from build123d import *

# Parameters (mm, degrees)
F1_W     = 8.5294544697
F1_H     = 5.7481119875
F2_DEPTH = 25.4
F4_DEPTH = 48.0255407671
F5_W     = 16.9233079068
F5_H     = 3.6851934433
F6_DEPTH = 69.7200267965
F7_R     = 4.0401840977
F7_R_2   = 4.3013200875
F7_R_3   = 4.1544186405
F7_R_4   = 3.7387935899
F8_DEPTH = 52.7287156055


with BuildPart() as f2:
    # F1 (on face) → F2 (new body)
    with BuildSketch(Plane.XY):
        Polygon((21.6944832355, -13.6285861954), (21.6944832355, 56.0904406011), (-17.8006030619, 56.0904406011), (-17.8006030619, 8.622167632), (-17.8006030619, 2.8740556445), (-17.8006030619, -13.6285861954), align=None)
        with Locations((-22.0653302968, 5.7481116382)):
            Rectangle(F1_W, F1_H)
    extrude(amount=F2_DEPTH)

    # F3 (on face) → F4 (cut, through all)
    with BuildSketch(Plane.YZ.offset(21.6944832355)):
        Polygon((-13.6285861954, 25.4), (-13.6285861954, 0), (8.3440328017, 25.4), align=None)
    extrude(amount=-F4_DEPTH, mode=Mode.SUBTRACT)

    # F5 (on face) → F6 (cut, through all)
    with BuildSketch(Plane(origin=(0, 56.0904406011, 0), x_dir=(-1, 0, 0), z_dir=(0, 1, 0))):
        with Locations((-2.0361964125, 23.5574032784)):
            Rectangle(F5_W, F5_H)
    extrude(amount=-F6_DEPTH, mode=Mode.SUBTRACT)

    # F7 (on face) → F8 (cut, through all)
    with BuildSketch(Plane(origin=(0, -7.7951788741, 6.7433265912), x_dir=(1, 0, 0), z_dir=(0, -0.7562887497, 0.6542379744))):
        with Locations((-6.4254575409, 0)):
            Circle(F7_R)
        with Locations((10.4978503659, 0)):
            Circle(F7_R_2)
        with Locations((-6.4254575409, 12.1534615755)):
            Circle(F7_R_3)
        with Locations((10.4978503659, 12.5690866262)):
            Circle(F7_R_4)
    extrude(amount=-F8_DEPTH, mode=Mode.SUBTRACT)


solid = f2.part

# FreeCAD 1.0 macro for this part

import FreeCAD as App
import Part
import Sketcher
from FreeCAD import Vector
Q = App.Units.Quantity

doc = App.newDocument("Part")
params = doc.addObject("Spreadsheet::Sheet", "Params")
for row, (alias, value) in enumerate([
    ("pad1_length", "1 in"),
    ("sketch2_height", "1 in"),
], start=1):
    params.set(f"A{row}", alias)
    params.set(f"B{row}", "=" + value)
    params.setAlias(f"B{row}", alias)

body = doc.addObject("PartDesign::Body", "Body")

sketch1 = body.newObject("Sketcher::SketchObject", "Sketch")
sketch1.AttachmentSupport = (doc.getObject("XY_Plane"), [""])
sketch1.MapMode = "FlatFace"
sketch1.addGeometry(Part.LineSegment(Vector(22, -14, 0), Vector(22, 56, 0)), False)
sketch1.addGeometry(Part.LineSegment(Vector(22, 56, 0), Vector(-18, 56, 0)), False)
sketch1.addGeometry(Part.LineSegment(Vector(-18, 56, 0), Vector(-18, 9, 0)), False)
sketch1.addGeometry(Part.LineSegment(Vector(-18, 9, 0), Vector(-26, 9, 0)), False)
sketch1.addGeometry(Part.LineSegment(Vector(-26, 9, 0), Vector(-26, 3, 0)), False)
sketch1.addGeometry(Part.LineSegment(Vector(-26, 3, 0), Vector(-18, 3, 0)), False)
sketch1.addGeometry(Part.LineSegment(Vector(-18, 3, 0), Vector(-18, -14, 0)), False)
sketch1.addGeometry(Part.LineSegment(Vector(-18, -14, 0), Vector(22, -14, 0)), False)
sketch1.addConstraint(Sketcher.Constraint("Coincident", 0, 2, 1, 1))
sketch1.addConstraint(Sketcher.Constraint("Coincident", 1, 2, 2, 1))
sketch1.addConstraint(Sketcher.Constraint("Coincident", 2, 2, 3, 1))
sketch1.addConstraint(Sketcher.Constraint("Coincident", 3, 2, 4, 1))
sketch1.addConstraint(Sketcher.Constraint("Coincident", 4, 2, 5, 1))
sketch1.addConstraint(Sketcher.Constraint("Coincident", 5, 2, 6, 1))
sketch1.addConstraint(Sketcher.Constraint("Coincident", 6, 2, 7, 1))
sketch1.addConstraint(Sketcher.Constraint("Coincident", 7, 2, 0, 1))
sketch1.addConstraint(Sketcher.Constraint("Vertical", 0))
sketch1.addConstraint(Sketcher.Constraint("Horizontal", 1))
sketch1.addConstraint(Sketcher.Constraint("Vertical", 2))
sketch1.addConstraint(Sketcher.Constraint("Horizontal", 3))
sketch1.addConstraint(Sketcher.Constraint("Vertical", 4))
sketch1.addConstraint(Sketcher.Constraint("Horizontal", 5))
sketch1.addConstraint(Sketcher.Constraint("Vertical", 6))
sketch1.addConstraint(Sketcher.Constraint("Horizontal", 7))
sketch1.addConstraint(Sketcher.Constraint("Vertical", 2, 2, 5, 2))
sketch1.addConstraint(Sketcher.Constraint("DistanceY", 4, 2, 4, 1, 5.748112))
sketch1.addConstraint(Sketcher.Constraint("DistanceY", 6, 2, 6, 1, 16.502642))
sketch1.addConstraint(Sketcher.Constraint("DistanceX", 1, 2, 1, 1, 39.495086))
sketch1.addConstraint(Sketcher.Constraint("DistanceX", 3, 2, 3, 1, 8.529454))
sketch1.addConstraint(Sketcher.Constraint("DistanceY", 0, 1, 0, 2, 69.719027))
sketch1.addConstraint(Sketcher.Constraint("DistanceY", -1, 1, 0, 2, 56.090441))
sketch1.addConstraint(Sketcher.Constraint("DistanceX", -1, 1, 0, 2, 21.694483))
pad1 = body.newObject("PartDesign::Pad", "Pad")
pad1.Profile = sketch1
pad1.setExpression("Length", "Params.pad1_length")

sketch2 = body.newObject("Sketcher::SketchObject", "Sketch001")
sketch2.AttachmentSupport = (doc.getObject("YZ_Plane"), [""])
sketch2.MapMode = "FlatFace"
sketch2.AttachmentOffset = App.Placement(Vector(0, 0, 21.694483), App.Rotation())
sketch2.addGeometry(Part.LineSegment(Vector(-14, 25, 0), Vector(-14, 0, 0)), False)
sketch2.addGeometry(Part.LineSegment(Vector(-14, 0, 0), Vector(8, 25, 0)), False)
sketch2.addGeometry(Part.LineSegment(Vector(8, 25, 0), Vector(-14, 25, 0)), False)
sketch2.addConstraint(Sketcher.Constraint("Coincident", 0, 2, 1, 1))
sketch2.addConstraint(Sketcher.Constraint("Coincident", 1, 2, 2, 1))
sketch2.addConstraint(Sketcher.Constraint("Coincident", 2, 2, 0, 1))
sketch2.addConstraint(Sketcher.Constraint("Vertical", 0))
sketch2.addConstraint(Sketcher.Constraint("Horizontal", 2))
sketch2.addConstraint(Sketcher.Constraint("PointOnObject", 0, 2, -1))
sketch2.addConstraint(Sketcher.Constraint("DistanceY", 0, 2, 0, 1, Q("1 in")))
sketch2.addConstraint(Sketcher.Constraint("DistanceX", 2, 2, 2, 1, 21.972619))
sketch2.addConstraint(Sketcher.Constraint("DistanceX", 0, 2, -1, 1, 13.628586))
sketch2.setExpression("Constraints[6]", "Params.sketch2_height")
pocket1 = body.newObject("PartDesign::Pocket", "Pocket")
pocket1.Profile = sketch2
pocket1.Type = "ThroughAll"

sketch3 = body.newObject("Sketcher::SketchObject", "Sketch002")
sketch3.AttachmentSupport = (doc.getObject("XZ_Plane"), [""])
sketch3.MapMode = "FlatFace"
sketch3.AttachmentOffset = App.Placement(Vector(0, 0, -56.090441), App.Rotation())
sketch3.addGeometry(Part.LineSegment(Vector(10.5, 25.4, 0), Vector(10.5, 21.7, 0)), False)
sketch3.addGeometry(Part.LineSegment(Vector(10.5, 21.7, 0), Vector(-6.4, 21.7, 0)), False)
sketch3.addGeometry(Part.LineSegment(Vector(-6.4, 21.7, 0), Vector(-6.4, 25.4, 0)), False)
sketch3.addGeometry(Part.LineSegment(Vector(-6.4, 25.4, 0), Vector(10.5, 25.4, 0)), False)
sketch3.addConstraint(Sketcher.Constraint("Coincident", 0, 2, 1, 1))
sketch3.addConstraint(Sketcher.Constraint("Coincident", 1, 2, 2, 1))
sketch3.addConstraint(Sketcher.Constraint("Coincident", 2, 2, 3, 1))
sketch3.addConstraint(Sketcher.Constraint("Coincident", 3, 2, 0, 1))
sketch3.addConstraint(Sketcher.Constraint("Vertical", 0))
sketch3.addConstraint(Sketcher.Constraint("Horizontal", 1))
sketch3.addConstraint(Sketcher.Constraint("Vertical", 2))
sketch3.addConstraint(Sketcher.Constraint("Horizontal", 3))
sketch3.addConstraint(Sketcher.Constraint("DistanceY", -1, 1, 2, 2, Q("1 in")))
sketch3.addConstraint(Sketcher.Constraint("DistanceX", 1, 2, 1, 1, 16.923308))
sketch3.addConstraint(Sketcher.Constraint("DistanceY", 0, 2, 0, 1, 3.685193))
sketch3.addConstraint(Sketcher.Constraint("DistanceX", -1, 1, 0, 2, 10.49785))
pocket2 = body.newObject("PartDesign::Pocket", "Pocket001")
pocket2.Profile = sketch3
pocket2.Type = "ThroughAll"
pocket2.Reversed = True

sketch4 = body.newObject("Sketcher::SketchObject", "Sketch003")
sketch4.Placement = App.Placement(Vector(0, -7.795179, 6.743327), App.Rotation(Vector(1, 0, 0), Vector(0, 0.654237974, 0.75628875), Vector(0, -0.75628875, 0.654237974), "ZXY"))
sketch4.addGeometry(Part.Circle(Vector(-6.4, 0, 0), Vector(0, 0, 1), 4), False)
sketch4.addGeometry(Part.Circle(Vector(10.5, 0, 0), Vector(0, 0, 1), 4.3), False)
sketch4.addGeometry(Part.Circle(Vector(-6.4, 12.2, 0), Vector(0, 0, 1), 4.2), False)
sketch4.addGeometry(Part.Circle(Vector(10.5, 12.6, 0), Vector(0, 0, 1), 3.7), False)
sketch4.addConstraint(Sketcher.Constraint("PointOnObject", 0, 3, -1))
sketch4.addConstraint(Sketcher.Constraint("PointOnObject", 1, 3, -1))
sketch4.addConstraint(Sketcher.Constraint("Vertical", 0, 3, 2, 3))
sketch4.addConstraint(Sketcher.Constraint("Vertical", 1, 3, 3, 3))
sketch4.addConstraint(Sketcher.Constraint("Diameter", 0, 8.080368))
sketch4.addConstraint(Sketcher.Constraint("Diameter", 1, 8.60264))
sketch4.addConstraint(Sketcher.Constraint("Diameter", 2, 8.308837))
sketch4.addConstraint(Sketcher.Constraint("Diameter", 3, 7.477587))
sketch4.addConstraint(Sketcher.Constraint("DistanceX", -1, 1, 1, 3, 10.49785))
sketch4.addConstraint(Sketcher.Constraint("DistanceY", -1, 1, 2, 3, 12.153462))
sketch4.addConstraint(Sketcher.Constraint("DistanceX", 0, 3, -1, 1, 6.425458))
sketch4.addConstraint(Sketcher.Constraint("DistanceY", -1, 1, 3, 3, 12.569087))
pocket3 = body.newObject("PartDesign::Pocket", "Pocket002")
pocket3.Profile = sketch4
pocket3.Type = "ThroughAll"

doc.recompute()
